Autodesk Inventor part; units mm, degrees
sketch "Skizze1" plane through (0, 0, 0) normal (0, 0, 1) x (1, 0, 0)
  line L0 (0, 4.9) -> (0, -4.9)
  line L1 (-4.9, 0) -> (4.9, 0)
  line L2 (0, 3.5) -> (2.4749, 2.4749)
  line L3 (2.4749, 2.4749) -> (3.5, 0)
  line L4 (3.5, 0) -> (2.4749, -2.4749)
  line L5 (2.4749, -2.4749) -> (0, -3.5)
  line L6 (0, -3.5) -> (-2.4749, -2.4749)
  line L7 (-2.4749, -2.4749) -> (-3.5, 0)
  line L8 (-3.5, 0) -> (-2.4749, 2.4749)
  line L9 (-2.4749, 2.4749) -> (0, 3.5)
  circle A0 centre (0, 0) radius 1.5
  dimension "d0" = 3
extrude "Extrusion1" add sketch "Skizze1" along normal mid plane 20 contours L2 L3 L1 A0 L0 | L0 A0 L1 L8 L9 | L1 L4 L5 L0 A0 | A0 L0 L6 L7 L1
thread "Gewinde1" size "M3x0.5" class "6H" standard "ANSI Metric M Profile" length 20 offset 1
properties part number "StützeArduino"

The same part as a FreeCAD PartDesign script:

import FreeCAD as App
import Part
import Sketcher
from FreeCAD import Vector
Q = App.Units.Quantity

doc = App.newDocument("Part")
body = doc.addObject("PartDesign::Body", "Body")

# Sketch on XY plane
sketch1 = body.newObject("Sketcher::SketchObject", "Sketch")
sketch1.AttachmentSupport = (doc.getObject("XY_Plane"), [""])
sketch1.MapMode = "FlatFace"
sketch1.addGeometry([
    Part.LineSegment(Vector(2.5, 2.5, 0), Vector(0, 3.5, 0)),  # 0
    Part.LineSegment(Vector(0, 3.5, 0), Vector(-2.5, 2.5, 0)),  # 1
    Part.LineSegment(Vector(-2.5, 2.5, 0), Vector(-3.5, 0, 0)),  # 2
    Part.LineSegment(Vector(-3.5, 0, 0), Vector(-2.5, -2.5, 0)),  # 3
    Part.LineSegment(Vector(-2.5, -2.5, 0), Vector(0, -3.5, 0)),  # 4
    Part.LineSegment(Vector(0, -3.5, 0), Vector(2.5, -2.5, 0)),  # 5
    Part.LineSegment(Vector(2.5, -2.5, 0), Vector(3.5, 0, 0)),  # 6
    Part.LineSegment(Vector(3.5, 0, 0), Vector(2.5, 2.5, 0)),  # 7
    Part.Circle(Vector(0, 0, 0), Vector(0, 0, 1), 1.5),  # 8
], False)
sketch1.addConstraint([
    Sketcher.Constraint("Coincident", 0, 2, 1, 1),
    Sketcher.Constraint("Coincident", 1, 2, 2, 1),
    Sketcher.Constraint("Coincident", 2, 2, 3, 1),
    Sketcher.Constraint("Coincident", 3, 2, 4, 1),
    Sketcher.Constraint("Coincident", 4, 2, 5, 1),
    Sketcher.Constraint("Coincident", 5, 2, 6, 1),
    Sketcher.Constraint("Coincident", 6, 2, 7, 1),
    Sketcher.Constraint("Coincident", 7, 2, 0, 1),
    Sketcher.Constraint("Coincident", 8, 3, -1, 1),
    Sketcher.Constraint("Symmetric", 0, 2, 4, 2, -1, 1),
    Sketcher.Constraint("Symmetric", 1, 2, 5, 2, -1, 1),
    Sketcher.Constraint("Symmetric", 2, 2, 6, 2, -1, 1),
    Sketcher.Constraint("Symmetric", 3, 2, 7, 2, -1, 1),
    Sketcher.Constraint("Symmetric", 3, 2, 5, 2, -2),
    Sketcher.Constraint("PointOnObject", 0, 2, -2),
    Sketcher.Constraint("PointOnObject", 2, 2, -1),
    Sketcher.Constraint("Perpendicular", 0, 2),
    Sketcher.Constraint("Equal", 1, 2),
    Sketcher.Constraint("Diameter", 8, 3.0),
    Sketcher.Constraint("Angle", 0, Q("157.5007 deg")),
    Sketcher.Constraint("DistanceY", 4, 2, 0, 2, 7.0),
])
pad1 = body.newObject("PartDesign::Pad", "Pad")
pad1.Profile = sketch1
pad1.Length = 20
pad1.Midplane = True

doc.recompute()
